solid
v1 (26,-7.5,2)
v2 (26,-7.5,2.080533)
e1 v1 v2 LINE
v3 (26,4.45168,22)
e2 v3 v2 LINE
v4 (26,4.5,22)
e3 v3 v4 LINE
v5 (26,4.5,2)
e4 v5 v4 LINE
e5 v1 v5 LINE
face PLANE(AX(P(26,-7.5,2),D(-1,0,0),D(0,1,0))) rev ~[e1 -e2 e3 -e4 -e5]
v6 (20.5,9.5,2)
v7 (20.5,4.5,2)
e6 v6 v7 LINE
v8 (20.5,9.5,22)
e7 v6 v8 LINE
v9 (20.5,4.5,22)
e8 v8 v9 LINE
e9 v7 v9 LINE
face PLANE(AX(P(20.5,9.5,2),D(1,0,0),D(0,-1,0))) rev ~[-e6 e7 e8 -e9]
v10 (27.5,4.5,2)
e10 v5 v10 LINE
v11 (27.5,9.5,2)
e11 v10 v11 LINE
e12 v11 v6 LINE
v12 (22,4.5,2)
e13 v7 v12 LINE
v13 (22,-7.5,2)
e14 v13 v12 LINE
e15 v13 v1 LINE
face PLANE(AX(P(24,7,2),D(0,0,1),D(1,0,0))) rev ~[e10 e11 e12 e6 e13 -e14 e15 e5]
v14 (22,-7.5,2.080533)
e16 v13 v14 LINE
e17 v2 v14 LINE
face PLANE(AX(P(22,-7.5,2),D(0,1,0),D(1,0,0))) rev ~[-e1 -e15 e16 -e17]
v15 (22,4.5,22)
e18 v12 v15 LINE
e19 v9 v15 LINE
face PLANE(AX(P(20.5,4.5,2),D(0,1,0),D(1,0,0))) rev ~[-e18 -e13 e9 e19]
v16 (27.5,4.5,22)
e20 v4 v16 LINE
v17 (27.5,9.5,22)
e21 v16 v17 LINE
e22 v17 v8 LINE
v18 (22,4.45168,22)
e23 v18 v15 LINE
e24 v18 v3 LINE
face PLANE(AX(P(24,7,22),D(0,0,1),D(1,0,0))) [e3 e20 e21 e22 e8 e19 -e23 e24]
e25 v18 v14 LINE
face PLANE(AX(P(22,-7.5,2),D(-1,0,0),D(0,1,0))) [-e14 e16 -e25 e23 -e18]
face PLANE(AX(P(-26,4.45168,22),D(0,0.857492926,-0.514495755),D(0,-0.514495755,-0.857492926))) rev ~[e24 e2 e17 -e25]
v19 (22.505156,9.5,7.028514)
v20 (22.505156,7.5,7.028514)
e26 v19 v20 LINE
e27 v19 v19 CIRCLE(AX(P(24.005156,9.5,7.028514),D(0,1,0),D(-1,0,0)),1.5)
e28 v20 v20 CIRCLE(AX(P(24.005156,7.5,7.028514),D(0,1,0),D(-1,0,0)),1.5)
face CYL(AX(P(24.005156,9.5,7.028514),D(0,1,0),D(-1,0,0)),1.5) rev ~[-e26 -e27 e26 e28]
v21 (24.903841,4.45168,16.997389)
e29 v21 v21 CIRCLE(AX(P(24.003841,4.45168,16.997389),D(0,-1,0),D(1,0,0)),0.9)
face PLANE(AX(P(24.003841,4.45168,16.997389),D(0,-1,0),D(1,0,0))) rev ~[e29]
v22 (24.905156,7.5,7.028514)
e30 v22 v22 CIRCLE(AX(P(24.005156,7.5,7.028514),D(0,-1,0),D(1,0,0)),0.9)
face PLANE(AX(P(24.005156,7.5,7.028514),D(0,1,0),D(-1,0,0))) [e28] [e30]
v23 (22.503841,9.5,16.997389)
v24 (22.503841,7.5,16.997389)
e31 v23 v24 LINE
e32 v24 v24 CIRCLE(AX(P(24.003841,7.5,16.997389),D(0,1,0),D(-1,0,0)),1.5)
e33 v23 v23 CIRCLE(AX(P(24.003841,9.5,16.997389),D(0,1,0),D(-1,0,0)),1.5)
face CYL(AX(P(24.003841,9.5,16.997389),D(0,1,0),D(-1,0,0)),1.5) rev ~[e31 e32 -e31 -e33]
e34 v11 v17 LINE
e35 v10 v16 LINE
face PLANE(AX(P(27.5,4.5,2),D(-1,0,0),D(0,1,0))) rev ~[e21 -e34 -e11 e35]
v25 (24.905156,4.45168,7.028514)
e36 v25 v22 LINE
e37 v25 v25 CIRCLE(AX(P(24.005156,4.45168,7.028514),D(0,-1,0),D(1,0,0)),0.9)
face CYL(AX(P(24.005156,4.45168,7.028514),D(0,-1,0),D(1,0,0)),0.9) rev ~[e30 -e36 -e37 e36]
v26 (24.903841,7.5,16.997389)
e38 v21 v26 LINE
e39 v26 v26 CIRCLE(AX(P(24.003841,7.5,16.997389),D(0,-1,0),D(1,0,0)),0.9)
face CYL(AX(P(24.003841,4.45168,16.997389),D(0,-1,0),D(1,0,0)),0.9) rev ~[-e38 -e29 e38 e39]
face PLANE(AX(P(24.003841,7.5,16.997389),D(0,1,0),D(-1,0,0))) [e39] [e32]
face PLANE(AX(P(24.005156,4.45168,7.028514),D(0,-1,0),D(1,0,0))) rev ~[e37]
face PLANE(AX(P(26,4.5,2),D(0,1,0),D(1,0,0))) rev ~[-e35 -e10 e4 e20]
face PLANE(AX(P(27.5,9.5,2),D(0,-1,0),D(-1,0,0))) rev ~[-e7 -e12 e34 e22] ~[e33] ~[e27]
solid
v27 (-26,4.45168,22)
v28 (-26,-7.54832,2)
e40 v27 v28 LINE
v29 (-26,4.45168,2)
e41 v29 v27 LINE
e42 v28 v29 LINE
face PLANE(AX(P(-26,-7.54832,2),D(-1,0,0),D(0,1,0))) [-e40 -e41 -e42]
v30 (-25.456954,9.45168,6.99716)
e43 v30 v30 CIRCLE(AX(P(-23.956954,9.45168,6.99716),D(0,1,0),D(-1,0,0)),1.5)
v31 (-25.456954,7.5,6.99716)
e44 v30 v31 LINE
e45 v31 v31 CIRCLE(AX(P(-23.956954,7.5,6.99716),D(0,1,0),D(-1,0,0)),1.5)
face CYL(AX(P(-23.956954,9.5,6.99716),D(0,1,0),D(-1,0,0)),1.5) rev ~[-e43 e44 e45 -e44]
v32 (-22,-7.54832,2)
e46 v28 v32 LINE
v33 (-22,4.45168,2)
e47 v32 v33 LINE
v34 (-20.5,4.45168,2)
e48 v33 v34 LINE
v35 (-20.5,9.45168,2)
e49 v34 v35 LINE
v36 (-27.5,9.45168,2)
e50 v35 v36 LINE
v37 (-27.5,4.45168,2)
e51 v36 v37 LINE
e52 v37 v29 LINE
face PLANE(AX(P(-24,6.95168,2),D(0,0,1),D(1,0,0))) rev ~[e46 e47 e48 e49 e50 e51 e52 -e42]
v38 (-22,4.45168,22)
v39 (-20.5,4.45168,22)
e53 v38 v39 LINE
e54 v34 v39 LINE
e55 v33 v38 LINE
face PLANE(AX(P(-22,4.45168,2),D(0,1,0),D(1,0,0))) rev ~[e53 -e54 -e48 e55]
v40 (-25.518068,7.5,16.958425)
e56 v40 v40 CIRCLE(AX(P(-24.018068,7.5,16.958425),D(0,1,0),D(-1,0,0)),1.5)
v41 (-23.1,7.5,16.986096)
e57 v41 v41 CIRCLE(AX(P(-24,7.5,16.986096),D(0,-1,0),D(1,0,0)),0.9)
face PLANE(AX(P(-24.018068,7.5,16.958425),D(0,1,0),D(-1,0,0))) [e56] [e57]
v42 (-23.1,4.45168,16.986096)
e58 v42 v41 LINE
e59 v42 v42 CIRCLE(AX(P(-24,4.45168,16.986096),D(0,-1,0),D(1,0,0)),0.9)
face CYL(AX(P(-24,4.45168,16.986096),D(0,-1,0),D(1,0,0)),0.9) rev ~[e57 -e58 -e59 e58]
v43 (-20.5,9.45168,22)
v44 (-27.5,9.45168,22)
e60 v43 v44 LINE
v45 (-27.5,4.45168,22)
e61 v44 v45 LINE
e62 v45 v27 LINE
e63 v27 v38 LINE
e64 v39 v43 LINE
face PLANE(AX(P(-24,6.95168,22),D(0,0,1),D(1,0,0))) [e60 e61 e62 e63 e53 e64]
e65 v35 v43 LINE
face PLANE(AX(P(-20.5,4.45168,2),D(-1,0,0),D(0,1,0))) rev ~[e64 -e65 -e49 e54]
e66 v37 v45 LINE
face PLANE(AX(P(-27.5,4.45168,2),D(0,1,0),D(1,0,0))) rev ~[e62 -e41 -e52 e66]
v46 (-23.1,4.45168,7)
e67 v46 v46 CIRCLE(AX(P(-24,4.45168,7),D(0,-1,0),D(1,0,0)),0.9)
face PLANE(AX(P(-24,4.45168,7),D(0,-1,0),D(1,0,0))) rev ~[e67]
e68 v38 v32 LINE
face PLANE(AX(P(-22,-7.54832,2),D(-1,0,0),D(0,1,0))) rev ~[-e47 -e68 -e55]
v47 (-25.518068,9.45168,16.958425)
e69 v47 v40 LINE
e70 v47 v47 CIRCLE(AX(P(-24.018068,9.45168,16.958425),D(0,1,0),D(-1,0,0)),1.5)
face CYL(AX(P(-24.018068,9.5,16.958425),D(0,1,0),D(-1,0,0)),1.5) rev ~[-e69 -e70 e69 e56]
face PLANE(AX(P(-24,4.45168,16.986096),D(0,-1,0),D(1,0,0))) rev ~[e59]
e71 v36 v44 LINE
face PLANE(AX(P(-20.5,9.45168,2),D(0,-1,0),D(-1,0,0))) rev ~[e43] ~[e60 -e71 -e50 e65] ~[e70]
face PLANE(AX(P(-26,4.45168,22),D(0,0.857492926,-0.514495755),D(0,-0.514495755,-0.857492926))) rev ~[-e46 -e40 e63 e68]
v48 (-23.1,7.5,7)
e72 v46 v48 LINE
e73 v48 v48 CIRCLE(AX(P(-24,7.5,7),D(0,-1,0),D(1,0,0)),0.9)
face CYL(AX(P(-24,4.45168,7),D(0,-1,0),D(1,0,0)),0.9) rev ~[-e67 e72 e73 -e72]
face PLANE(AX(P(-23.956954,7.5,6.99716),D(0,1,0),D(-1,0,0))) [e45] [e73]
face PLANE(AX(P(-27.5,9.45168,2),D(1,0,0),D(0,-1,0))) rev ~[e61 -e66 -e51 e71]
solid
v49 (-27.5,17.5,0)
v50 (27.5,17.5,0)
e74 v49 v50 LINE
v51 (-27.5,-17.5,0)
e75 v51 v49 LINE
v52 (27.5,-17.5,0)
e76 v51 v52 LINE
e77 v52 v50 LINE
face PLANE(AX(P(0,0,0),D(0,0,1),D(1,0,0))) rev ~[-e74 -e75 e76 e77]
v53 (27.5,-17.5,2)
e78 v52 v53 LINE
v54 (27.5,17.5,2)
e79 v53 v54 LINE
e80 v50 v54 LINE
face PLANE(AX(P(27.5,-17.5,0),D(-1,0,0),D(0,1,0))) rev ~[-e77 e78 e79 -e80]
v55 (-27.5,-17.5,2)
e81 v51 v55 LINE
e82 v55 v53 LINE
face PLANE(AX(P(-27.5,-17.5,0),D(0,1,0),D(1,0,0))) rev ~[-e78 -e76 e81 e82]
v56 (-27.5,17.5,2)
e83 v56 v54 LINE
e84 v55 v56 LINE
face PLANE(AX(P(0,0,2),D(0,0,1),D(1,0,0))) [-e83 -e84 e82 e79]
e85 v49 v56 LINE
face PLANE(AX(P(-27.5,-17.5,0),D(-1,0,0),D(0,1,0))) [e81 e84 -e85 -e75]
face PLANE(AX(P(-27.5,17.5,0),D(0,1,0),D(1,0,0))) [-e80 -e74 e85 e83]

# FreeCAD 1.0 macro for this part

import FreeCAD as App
import Part
import Sketcher

V = App.Vector
Q = App.Units.Quantity

doc = App.newDocument("Part")
body = doc.addObject("PartDesign::Body", "Body")

sketch1 = body.newObject("Sketcher::SketchObject", "Sketch")
sketch1.AttachmentSupport = (doc.getObject("XY_Plane"), [""])
sketch1.MapMode = "FlatFace"
sketch1.addGeometry(Part.LineSegment(V(-27.5, 17.5, 0), V(-27.5, -17.5, 0)), False)
sketch1.addGeometry(Part.LineSegment(V(-27.5, -17.5, 0), V(27.5, -17.5, 0)), False)
sketch1.addGeometry(Part.LineSegment(V(27.5, -17.5, 0), V(27.5, 17.5, 0)), False)
sketch1.addGeometry(Part.LineSegment(V(27.5, 17.5, 0), V(-27.5, 17.5, 0)), False)
sketch1.addConstraint(Sketcher.Constraint("Coincident", 0, 2, 1, 1))
sketch1.addConstraint(Sketcher.Constraint("Coincident", 1, 2, 2, 1))
sketch1.addConstraint(Sketcher.Constraint("Coincident", 2, 2, 3, 1))
sketch1.addConstraint(Sketcher.Constraint("Coincident", 3, 2, 0, 1))
sketch1.addConstraint(Sketcher.Constraint("Vertical", 0))
sketch1.addConstraint(Sketcher.Constraint("Horizontal", 1))
sketch1.addConstraint(Sketcher.Constraint("Vertical", 2))
sketch1.addConstraint(Sketcher.Constraint("Horizontal", 3))
sketch1.addConstraint(Sketcher.Constraint("Symmetric", 0, 2, 2, 2, -1, 1))
sketch1.addConstraint(Sketcher.Constraint("DistanceX", 1, 1, 1, 2, Q("55 mm")))
sketch1.addConstraint(Sketcher.Constraint("DistanceY", 0, 2, 0, 1, Q("35 mm")))
pad1 = body.newObject("PartDesign::Pad", "Pad")
pad1.Profile = sketch1
pad1.Length = 2
body2 = doc.addObject("PartDesign::Body", "Body001")
body2.AllowCompound = True

sketch2 = body2.newObject("Sketcher::SketchObject", "Sketch001")
sketch2.AttachmentSupport = (doc.getObject("XY_Plane001"), [""])
sketch2.MapMode = "FlatFace"
sketch2.AttachmentOffset = App.Placement(V(0, 0, 2), App.Rotation())
sketch2.addGeometry(Part.LineSegment(V(-27.5, 9.45168, 0), V(-27.5, 4.45168, 0)), False)
sketch2.addGeometry(Part.LineSegment(V(-27.5, 4.45168, 0), V(-26, 4.45168, 0)), False)
sketch2.addGeometry(Part.LineSegment(V(-26, 4.45168, 0), V(-26, -7.54832, 0)), False)
sketch2.addGeometry(Part.LineSegment(V(-26, -7.54832, 0), V(-22, -7.54832, 0)), False)
sketch2.addGeometry(Part.LineSegment(V(-22, -7.54832, 0), V(-22, 4.45168, 0)), False)
sketch2.addGeometry(Part.LineSegment(V(-22, 4.45168, 0), V(-20.5, 4.45168, 0)), False)
sketch2.addGeometry(Part.LineSegment(V(-20.5, 4.45168, 0), V(-20.5, 9.45168, 0)), False)
sketch2.addGeometry(Part.LineSegment(V(-20.5, 9.45168, 0), V(-27.5, 9.45168, 0)), False)
sketch2.addGeometry(Part.LineSegment(V(27.5, 9.5, 0), V(20.5, 9.5, 0)), False)
sketch2.addGeometry(Part.LineSegment(V(20.5, 9.5, 0), V(20.5, 4.5, 0)), False)
sketch2.addGeometry(Part.LineSegment(V(20.5, 4.5, 0), V(22, 4.5, 0)), False)
sketch2.addGeometry(Part.LineSegment(V(22, 4.5, 0), V(22, -7.5, 0)), False)
sketch2.addGeometry(Part.LineSegment(V(22, -7.5, 0), V(26, -7.5, 0)), False)
sketch2.addGeometry(Part.LineSegment(V(26, -7.5, 0), V(26, 4.5, 0)), False)
sketch2.addGeometry(Part.LineSegment(V(26, 4.5, 0), V(27.5, 4.5, 0)), False)
sketch2.addGeometry(Part.LineSegment(V(27.5, 4.5, 0), V(27.5, 9.5, 0)), False)
sketch2.addConstraint(Sketcher.Constraint("Coincident", 0, 2, 1, 1))
sketch2.addConstraint(Sketcher.Constraint("Coincident", 1, 2, 2, 1))
sketch2.addConstraint(Sketcher.Constraint("Coincident", 2, 2, 3, 1))
sketch2.addConstraint(Sketcher.Constraint("Coincident", 3, 2, 4, 1))
sketch2.addConstraint(Sketcher.Constraint("Coincident", 4, 2, 5, 1))
sketch2.addConstraint(Sketcher.Constraint("Coincident", 5, 2, 6, 1))
sketch2.addConstraint(Sketcher.Constraint("Coincident", 6, 2, 7, 1))
sketch2.addConstraint(Sketcher.Constraint("Coincident", 7, 2, 0, 1))
sketch2.addConstraint(Sketcher.Constraint("Coincident", 8, 2, 9, 1))
sketch2.addConstraint(Sketcher.Constraint("Coincident", 9, 2, 10, 1))
sketch2.addConstraint(Sketcher.Constraint("Coincident", 10, 2, 11, 1))
sketch2.addConstraint(Sketcher.Constraint("Coincident", 11, 2, 12, 1))
sketch2.addConstraint(Sketcher.Constraint("Coincident", 12, 2, 13, 1))
sketch2.addConstraint(Sketcher.Constraint("Coincident", 13, 2, 14, 1))
sketch2.addConstraint(Sketcher.Constraint("Coincident", 14, 2, 15, 1))
sketch2.addConstraint(Sketcher.Constraint("Coincident", 15, 2, 8, 1))
sketch2.addConstraint(Sketcher.Constraint("Vertical", 0))
sketch2.addConstraint(Sketcher.Constraint("Horizontal", 1))
sketch2.addConstraint(Sketcher.Constraint("Vertical", 2))
sketch2.addConstraint(Sketcher.Constraint("Horizontal", 3))
sketch2.addConstraint(Sketcher.Constraint("Vertical", 4))
sketch2.addConstraint(Sketcher.Constraint("Horizontal", 5))
sketch2.addConstraint(Sketcher.Constraint("Vertical", 6))
sketch2.addConstraint(Sketcher.Constraint("Horizontal", 7))
sketch2.addConstraint(Sketcher.Constraint("Horizontal", 8))
sketch2.addConstraint(Sketcher.Constraint("Vertical", 9))
sketch2.addConstraint(Sketcher.Constraint("Horizontal", 10))
sketch2.addConstraint(Sketcher.Constraint("Vertical", 11))
sketch2.addConstraint(Sketcher.Constraint("Horizontal", 12))
sketch2.addConstraint(Sketcher.Constraint("Vertical", 13))
sketch2.addConstraint(Sketcher.Constraint("Horizontal", 14))
sketch2.addConstraint(Sketcher.Constraint("Vertical", 15))
sketch2.addConstraint(Sketcher.Constraint("Horizontal", 1, 2, 4, 2))
sketch2.addConstraint(Sketcher.Constraint("Horizontal", 10, 2, 13, 2))
sketch2.addConstraint(Sketcher.Constraint("Equal", 1, 5))
sketch2.addConstraint(Sketcher.Constraint("Equal", 7, 8))
sketch2.addConstraint(Sketcher.Constraint("Equal", 5, 10))
sketch2.addConstraint(Sketcher.Constraint("Equal", 3, 12))
sketch2.addConstraint(Sketcher.Constraint("Equal", 6, 9))
sketch2.addConstraint(Sketcher.Constraint("Equal", 4, 11))
sketch2.addConstraint(Sketcher.Constraint("DistanceX", 3, 1, 3, 2, Q("4 mm")))
sketch2.addConstraint(Sketcher.Constraint("DistanceX", 7, 2, 7, 1, Q("7 mm")))
sketch2.addConstraint(Sketcher.Constraint("DistanceY", 0, 2, 0, 1, Q("5 mm")))
sketch2.addConstraint(Sketcher.Constraint("DistanceY", 2, 2, 2, 1, Q("12 mm")))
sketch2.addConstraint(Sketcher.Constraint("DistanceX", 1, 2, -1, 1, Q("26 mm")))
sketch2.addConstraint(Sketcher.Constraint("DistanceX", -1, 1, 10, 2, Q("22 mm")))
sketch2.addConstraint(Sketcher.Constraint("DistanceY", -1, 1, 8, 2, Q("9.5 mm")))
sketch2.addConstraint(Sketcher.Constraint("DistanceY", -1, 1, 0, 2, Q("4.45168 mm")))
pad2 = body2.newObject("PartDesign::Pad", "Pad001")
pad2.Profile = sketch2
pad2.Length = 20

sketch3 = body2.newObject("Sketcher::SketchObject", "Sketch002")
sketch3.AttachmentSupport = (doc.getObject("XZ_Plane001"), [""])
sketch3.MapMode = "FlatFace"
sketch3.AttachmentOffset = App.Placement(V(0, 0, -4.45168), App.Rotation())
sketch3.addGeometry(Part.Circle(V(-24, 16.986096, 0), V(0, 0, 1), 0.9), False)
sketch3.addGeometry(Part.Circle(V(-24, 7, 0), V(0, 0, 1), 0.9), False)
sketch3.addGeometry(Part.Circle(V(24.003841, 16.997389, 0), V(0, 0, 1), 0.9), False)
sketch3.addGeometry(Part.Circle(V(24.005156, 7.028514, 0), V(0, 0, 1), 0.9), False)
sketch3.addConstraint(Sketcher.Constraint("Equal", 0, 1))
sketch3.addConstraint(Sketcher.Constraint("Equal", 1, 2))
sketch3.addConstraint(Sketcher.Constraint("Equal", 2, 3))
sketch3.addConstraint(Sketcher.Constraint("Vertical", 0, 3, 1, 3))
sketch3.addConstraint(Sketcher.Constraint("Diameter", 0, Q("1.8 mm")))
sketch3.addConstraint(Sketcher.Constraint("DistanceX", 0, 3, -1, 1, Q("24 mm")))
sketch3.addConstraint(Sketcher.Constraint("DistanceY", -1, 1, 1, 3, Q("7 mm")))
sketch3.addConstraint(Sketcher.Constraint("DistanceX", -1, 1, 2, 3, Q("24.003841 mm")))
sketch3.addConstraint(Sketcher.Constraint("DistanceY", -1, 1, 2, 3, Q("16.997389 mm")))
sketch3.addConstraint(Sketcher.Constraint("DistanceY", 3, 3, 0, 3, Q("9.957582 mm")))
sketch3.addConstraint(Sketcher.Constraint("DistanceY", -1, 1, 0, 3, Q("16.986096 mm")))
sketch3.addConstraint(Sketcher.Constraint("DistanceX", -1, 1, 3, 3, Q("24.005156 mm")))
pocket1 = body2.newObject("PartDesign::Pocket", "Pocket")
pocket1.Profile = sketch3
pocket1.Length = 7

sketch4 = body2.newObject("Sketcher::SketchObject", "Sketch003")
sketch4.AttachmentSupport = (doc.getObject("XZ_Plane001"), [""])
sketch4.MapMode = "FlatFace"
sketch4.AttachmentOffset = App.Placement(V(0, 0, -9.5), App.Rotation())
sketch4.addGeometry(Part.Circle(V(24.003841, 16.997389, 0), V(0, 0, 1), 1.5), False)
sketch4.addGeometry(Part.Circle(V(24.003841, 16.997389, 0), V(0, 0, 1), 0.9), False)
sketch4.addGeometry(Part.Circle(V(24.005156, 7.028514, 0), V(0, 0, 1), 1.5), False)
sketch4.addGeometry(Part.Circle(V(24.005156, 7.028514, 0), V(0, 0, 1), 0.9), False)
sketch4.addGeometry(Part.Circle(V(-24.018068, 16.958425, 0), V(0, 0, 1), 1.5), False)
sketch4.addGeometry(Part.Circle(V(-23.956954, 6.99716, 0), V(0, 0, 1), 1.5), False)
sketch4.addConstraint(Sketcher.Constraint("Coincident", 1, 3, 0, 3))
sketch4.addConstraint(Sketcher.Constraint("Coincident", 3, 3, 2, 3))
sketch4.addConstraint(Sketcher.Constraint("Equal", 0, 2))
sketch4.addConstraint(Sketcher.Constraint("Equal", 1, 3))
sketch4.addConstraint(Sketcher.Constraint("Equal", 2, 4))
sketch4.addConstraint(Sketcher.Constraint("Equal", 4, 5))
sketch4.addConstraint(Sketcher.Constraint("Diameter", 0, Q("3 mm")))
sketch4.addConstraint(Sketcher.Constraint("Diameter", 1, Q("1.8 mm")))
sketch4.addConstraint(Sketcher.Constraint("DistanceX", -1, 1, 0, 3, Q("24.003841 mm")))
sketch4.addConstraint(Sketcher.Constraint("DistanceY", -1, 1, 0, 3, Q("16.997389 mm")))
sketch4.addConstraint(Sketcher.Constraint("DistanceY", -1, 1, 5, 3, Q("6.99716 mm")))
sketch4.addConstraint(Sketcher.Constraint("DistanceX", 4, 3, 0, 3, Q("48.021909 mm")))
sketch4.addConstraint(Sketcher.Constraint("DistanceY", 2, 3, 4, 3, Q("9.929911 mm")))
sketch4.addConstraint(Sketcher.Constraint("DistanceX", 5, 3, 2, 3, Q("47.96211 mm")))
sketch4.addConstraint(Sketcher.Constraint("DistanceX", -1, 1, 2, 3, Q("24.005156 mm")))
sketch4.addConstraint(Sketcher.Constraint("DistanceY", -1, 1, 2, 3, Q("7.028514 mm")))
pocket2 = body2.newObject("PartDesign::Pocket", "Pocket001")
pocket2.Profile = sketch4
pocket2.Length = 2
pocket2.Reversed = True

sketch5 = body2.newObject("Sketcher::SketchObject", "Sketch004")
sketch5.AttachmentSupport = (doc.getObject("YZ_Plane001"), [""])
sketch5.MapMode = "FlatFace"
sketch5.AttachmentOffset = App.Placement(V(0, 0, -26), App.Rotation())
sketch5.addGeometry(Part.LineSegment(V(4.45168, 22, 0), V(-7.54832, 2, 0)), False)
sketch5.addGeometry(Part.LineSegment(V(-7.54832, 2, 0), V(-7.54832, 22, 0)), False)
sketch5.addGeometry(Part.LineSegment(V(-7.54832, 22, 0), V(4.45168, 22, 0)), False)
sketch5.addConstraint(Sketcher.Constraint("Coincident", 0, 2, 1, 1))
sketch5.addConstraint(Sketcher.Constraint("Coincident", 1, 2, 2, 1))
sketch5.addConstraint(Sketcher.Constraint("Coincident", 2, 2, 0, 1))
sketch5.addConstraint(Sketcher.Constraint("Vertical", 1))
sketch5.addConstraint(Sketcher.Constraint("Horizontal", 2))
sketch5.addConstraint(Sketcher.Constraint("DistanceX", 2, 1, 2, 2, Q("12 mm")))
sketch5.addConstraint(Sketcher.Constraint("DistanceY", 1, 1, 1, 2, Q("20 mm")))
sketch5.addConstraint(Sketcher.Constraint("DistanceY", -1, 1, 0, 2, Q("2 mm")))
sketch5.addConstraint(Sketcher.Constraint("DistanceX", 0, 2, -1, 1, Q("7.54832 mm")))
pocket3 = body2.newObject("PartDesign::Pocket", "Pocket002")
pocket3.Profile = sketch5
pocket3.Length = 55
pocket3.Reversed = True

doc.recompute()
